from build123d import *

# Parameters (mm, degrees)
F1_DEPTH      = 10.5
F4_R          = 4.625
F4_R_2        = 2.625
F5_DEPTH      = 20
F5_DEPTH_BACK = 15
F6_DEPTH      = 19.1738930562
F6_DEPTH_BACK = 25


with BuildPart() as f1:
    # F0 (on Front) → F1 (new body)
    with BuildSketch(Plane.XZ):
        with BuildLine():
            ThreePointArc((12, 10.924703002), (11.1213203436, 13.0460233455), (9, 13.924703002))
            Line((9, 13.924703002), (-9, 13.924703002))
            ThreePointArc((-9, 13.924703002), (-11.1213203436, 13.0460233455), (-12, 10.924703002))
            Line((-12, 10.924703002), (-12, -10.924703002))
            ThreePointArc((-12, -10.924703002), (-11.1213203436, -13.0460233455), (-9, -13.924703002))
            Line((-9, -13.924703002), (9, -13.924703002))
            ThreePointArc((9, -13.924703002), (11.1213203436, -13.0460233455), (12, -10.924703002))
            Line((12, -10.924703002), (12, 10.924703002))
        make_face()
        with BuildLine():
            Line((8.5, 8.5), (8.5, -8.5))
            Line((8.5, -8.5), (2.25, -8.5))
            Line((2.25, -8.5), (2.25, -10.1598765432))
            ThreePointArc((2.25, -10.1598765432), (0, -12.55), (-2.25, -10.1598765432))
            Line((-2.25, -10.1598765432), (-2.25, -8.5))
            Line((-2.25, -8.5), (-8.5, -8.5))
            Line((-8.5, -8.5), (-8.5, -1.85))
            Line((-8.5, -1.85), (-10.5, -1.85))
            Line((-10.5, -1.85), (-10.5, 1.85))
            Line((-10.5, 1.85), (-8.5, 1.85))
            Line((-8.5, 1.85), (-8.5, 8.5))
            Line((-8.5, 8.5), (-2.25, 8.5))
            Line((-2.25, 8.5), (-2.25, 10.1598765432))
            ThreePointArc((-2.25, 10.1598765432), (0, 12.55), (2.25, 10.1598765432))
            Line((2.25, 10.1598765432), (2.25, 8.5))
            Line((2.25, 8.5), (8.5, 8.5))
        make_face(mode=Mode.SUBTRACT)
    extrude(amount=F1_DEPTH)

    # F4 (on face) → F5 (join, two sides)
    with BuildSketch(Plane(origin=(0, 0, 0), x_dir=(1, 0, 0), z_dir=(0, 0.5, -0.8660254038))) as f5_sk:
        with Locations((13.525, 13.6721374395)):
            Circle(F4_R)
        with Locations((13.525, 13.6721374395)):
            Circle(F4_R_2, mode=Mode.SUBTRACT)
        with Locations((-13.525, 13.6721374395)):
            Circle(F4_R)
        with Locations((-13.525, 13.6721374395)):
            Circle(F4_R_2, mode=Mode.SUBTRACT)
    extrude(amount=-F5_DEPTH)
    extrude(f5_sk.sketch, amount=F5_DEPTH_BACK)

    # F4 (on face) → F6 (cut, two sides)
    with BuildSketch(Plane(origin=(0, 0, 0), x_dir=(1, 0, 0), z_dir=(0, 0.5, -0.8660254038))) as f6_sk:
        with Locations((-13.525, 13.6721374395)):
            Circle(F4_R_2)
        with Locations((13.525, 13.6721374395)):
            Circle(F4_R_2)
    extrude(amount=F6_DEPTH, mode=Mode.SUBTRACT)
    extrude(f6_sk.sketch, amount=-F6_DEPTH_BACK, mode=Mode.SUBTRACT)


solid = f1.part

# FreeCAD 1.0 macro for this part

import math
import FreeCAD as App
import Part
import Sketcher
from FreeCAD import Vector

doc = App.newDocument("Part")
params = doc.addObject("Spreadsheet::Sheet", "Params")
for row, (alias, value) in enumerate([
    ("sketch1_radius", "3 mm"),
    ("sketch1_width", "18 mm"),
    ("sketch1_width2", "2 mm"),
    ("sketch1_height", "17 mm"),
    ("sketch1_height2", "3.7 mm"),
    ("pad1_length", "10.5 mm"),
    ("sketch2_diameter", "9.25 mm"),
    ("sketch2_diameter2", "5.25 mm"),
    ("pad2_length", "20 mm"),
    ("pad2_length2", "15 mm"),
    ("sketch3_diameter", "5.25 mm"),
], start=1):
    params.set(f"A{row}", alias)
    params.set(f"B{row}", "=" + value)
    params.setAlias(f"B{row}", alias)

body = doc.addObject("PartDesign::Body", "Body")

# Sketch on XZ plane
sketch1 = doc.addObject("Sketcher::SketchObject", "Sketch")
body.addObject(sketch1)
sketch1.AttachmentSupport = (doc.XZ_Plane, [""])
sketch1.MapMode = "FlatFace"
sketch1.addGeometry([
    Part.ArcOfCircle(Part.Circle(Vector(9, 10.9, 0), Vector(0, 0, 1), 3), math.radians(0), math.radians(90)),  # 0
    Part.LineSegment(Vector(9, 13.9, 0), Vector(-9, 13.9, 0)),  # 1
    Part.ArcOfCircle(Part.Circle(Vector(-9, 10.9, 0), Vector(0, 0, 1), 3), math.radians(90), math.radians(180)),  # 2
    Part.LineSegment(Vector(-12, 10.9, 0), Vector(-12, -10.9, 0)),  # 3
    Part.ArcOfCircle(Part.Circle(Vector(-9, -10.9, 0), Vector(0, 0, 1), 3), math.radians(180), math.radians(270)),  # 4
    Part.LineSegment(Vector(-9, -13.9, 0), Vector(9, -13.9, 0)),  # 5
    Part.ArcOfCircle(Part.Circle(Vector(9, -10.9, 0), Vector(0, 0, 1), 3), math.radians(-90), math.radians(0)),  # 6
    Part.LineSegment(Vector(12, -10.9, 0), Vector(12, 10.9, 0)),  # 7
    Part.LineSegment(Vector(2.2, 8.5, 0), Vector(8.5, 8.5, 0)),  # 8
    Part.LineSegment(Vector(8.5, 8.5, 0), Vector(8.5, -8.5, 0)),  # 9
    Part.LineSegment(Vector(8.5, -8.5, 0), Vector(2.2, -8.5, 0)),  # 10
    Part.LineSegment(Vector(2.2, -8.5, 0), Vector(2.2, -10.2, 0)),  # 11
    Part.ArcOfCircle(Part.Circle(Vector(0, -10.3, 0), Vector(0, 0, 1), 2.3), math.radians(177), math.radians(363)),  # 12
    Part.LineSegment(Vector(-2.2, -10.2, 0), Vector(-2.2, -8.5, 0)),  # 13
    Part.LineSegment(Vector(-2.2, -8.5, 0), Vector(-8.5, -8.5, 0)),  # 14
    Part.LineSegment(Vector(-8.5, -8.5, 0), Vector(-8.5, -1.9, 0)),  # 15
    Part.LineSegment(Vector(-8.5, -1.9, 0), Vector(-10.5, -1.9, 0)),  # 16
    Part.LineSegment(Vector(-10.5, -1.9, 0), Vector(-10.5, 1.9, 0)),  # 17
    Part.LineSegment(Vector(-10.5, 1.9, 0), Vector(-8.5, 1.9, 0)),  # 18
    Part.LineSegment(Vector(-8.5, 1.9, 0), Vector(-8.5, 8.5, 0)),  # 19
    Part.LineSegment(Vector(-8.5, 8.5, 0), Vector(-2.2, 8.5, 0)),  # 20
    Part.LineSegment(Vector(-2.2, 8.5, 0), Vector(-2.2, 10.2, 0)),  # 21
    Part.ArcOfCircle(Part.Circle(Vector(0, 10.3, 0), Vector(0, 0, 1), 2.3), math.radians(-3), math.radians(183)),  # 22
    Part.LineSegment(Vector(2.2, 10.2, 0), Vector(2.2, 8.5, 0)),  # 23
], False)
sketch1.addConstraint([
    Sketcher.Constraint("Tangent", 0, 2, 1, 1),
    Sketcher.Constraint("Tangent", 1, 2, 2, 1),
    Sketcher.Constraint("Tangent", 2, 2, 3, 1),
    Sketcher.Constraint("Tangent", 3, 2, 4, 1),
    Sketcher.Constraint("Tangent", 4, 2, 5, 1),
    Sketcher.Constraint("Tangent", 5, 2, 6, 1),
    Sketcher.Constraint("Tangent", 6, 2, 7, 1),
    Sketcher.Constraint("Tangent", 7, 2, 0, 1),
    Sketcher.Constraint("Coincident", 8, 2, 9, 1),
    Sketcher.Constraint("Coincident", 9, 2, 10, 1),
    Sketcher.Constraint("Coincident", 10, 2, 11, 1),
    Sketcher.Constraint("Coincident", 11, 2, 12, 2),
    Sketcher.Constraint("Coincident", 12, 1, 13, 1),
    Sketcher.Constraint("Coincident", 13, 2, 14, 1),
    Sketcher.Constraint("Coincident", 14, 2, 15, 1),
    Sketcher.Constraint("Coincident", 15, 2, 16, 1),
    Sketcher.Constraint("Coincident", 16, 2, 17, 1),
    Sketcher.Constraint("Coincident", 17, 2, 18, 1),
    Sketcher.Constraint("Coincident", 18, 2, 19, 1),
    Sketcher.Constraint("Coincident", 19, 2, 20, 1),
    Sketcher.Constraint("Coincident", 20, 2, 21, 1),
    Sketcher.Constraint("Coincident", 21, 2, 22, 2),
    Sketcher.Constraint("Coincident", 22, 1, 23, 1),
    Sketcher.Constraint("Coincident", 23, 2, 8, 1),
    Sketcher.Constraint("Horizontal", 1),
    Sketcher.Constraint("Vertical", 3),
    Sketcher.Constraint("Horizontal", 5),
    Sketcher.Constraint("Vertical", 7),
    Sketcher.Constraint("Horizontal", 8),
    Sketcher.Constraint("Vertical", 9),
    Sketcher.Constraint("Horizontal", 10),
    Sketcher.Constraint("Vertical", 11),
    Sketcher.Constraint("Vertical", 13),
    Sketcher.Constraint("Horizontal", 14),
    Sketcher.Constraint("Vertical", 15),
    Sketcher.Constraint("Horizontal", 16),
    Sketcher.Constraint("Vertical", 17),
    Sketcher.Constraint("Horizontal", 18),
    Sketcher.Constraint("Vertical", 19),
    Sketcher.Constraint("Horizontal", 20),
    Sketcher.Constraint("Vertical", 21),
    Sketcher.Constraint("Vertical", 23),
    Sketcher.Constraint("Equal", 0, 2),
    Sketcher.Constraint("Equal", 2, 4),
    Sketcher.Constraint("Equal", 4, 6),
    Sketcher.Constraint("Equal", 12, 22),
    Sketcher.Constraint("Symmetric", 0, 3, 4, 3, -1, 1),
    Sketcher.Constraint("Symmetric", 12, 3, 22, 3, -1, 1),
    Sketcher.Constraint("Symmetric", 8, 2, 14, 2, -1, 1),
    Sketcher.Constraint("Symmetric", 9, 2, 19, 2, -1, 1),
    Sketcher.Constraint("Symmetric", 11, 2, 12, 1, -2),
    Sketcher.Constraint("Symmetric", 20, 2, 23, 2, -2),
    Sketcher.Constraint("Vertical", 13, 2, 20, 2),
    Sketcher.Constraint("Equal", 15, 19),
    Sketcher.Constraint("Radius", 0, 3.0),
    Sketcher.Constraint("DistanceX", 1, 2, 1, 1, 18.0),
    Sketcher.Constraint("DistanceX", 16, 2, 16, 1, 2.0),
    Sketcher.Constraint("DistanceY", 9, 2, 9, 1, 17.0),
    Sketcher.Constraint("DistanceY", 17, 1, 17, 2, 3.7),
    Sketcher.Constraint("DistanceX", 8, 1, 8, 2, 6.25),
    Sketcher.Constraint("DistanceX", -1, 1, 8, 2, 8.5),
    Sketcher.Constraint("Radius", 12, 2.254107),
    Sketcher.Constraint("DistanceY", 3, 2, 3, 1, 21.849406),
    Sketcher.Constraint("DistanceY", 11, 2, 11, 1, 1.659877),
])
sketch1.setExpression("Constraints[54]", "Params.sketch1_radius")
sketch1.setExpression("Constraints[55]", "Params.sketch1_width")
sketch1.setExpression("Constraints[56]", "Params.sketch1_width2")
sketch1.setExpression("Constraints[57]", "Params.sketch1_height")
sketch1.setExpression("Constraints[58]", "Params.sketch1_height2")
pad1 = doc.addObject("PartDesign::Pad", "Pad")
body.addObject(pad1)
pad1.Profile = sketch1
pad1.setExpression("Length", "Params.pad1_length")

# Sketch on an angled plane
sketch2 = doc.addObject("Sketcher::SketchObject", "Sketch001")
body.addObject(sketch2)
sketch2.Placement = App.Placement(Vector(0, 0, 0), App.Rotation(Vector(1, 0, 0), Vector(0, -0.866025404, -0.5), Vector(0, 0.5, -0.866025404), "ZXY"))
sketch2.addGeometry([
    Part.Circle(Vector(13.5, 13.7, 0), Vector(0, 0, 1), 4.6),
    Part.Circle(Vector(13.5, 13.7, 0), Vector(0, 0, 1), 2.6),
    Part.Circle(Vector(-13.5, 13.7, 0), Vector(0, 0, 1), 4.6),
    Part.Circle(Vector(-13.5, 13.7, 0), Vector(0, 0, 1), 2.6),
], False)
sketch2.addConstraint([
    Sketcher.Constraint("Coincident", 1, 3, 0, 3),
    Sketcher.Constraint("Coincident", 3, 3, 2, 3),
    Sketcher.Constraint("Equal", 0, 2),
    Sketcher.Constraint("Equal", 1, 3),
    Sketcher.Constraint("Symmetric", 0, 3, 2, 3, -2),
    Sketcher.Constraint("Diameter", 0, 9.25),
    Sketcher.Constraint("Diameter", 1, 5.25),
    Sketcher.Constraint("DistanceX", 2, 3, 0, 3, 27.05),
    Sketcher.Constraint("DistanceY", -1, 1, 0, 3, 13.672137),
])
sketch2.setExpression("Constraints[5]", "Params.sketch2_diameter")
sketch2.setExpression("Constraints[6]", "Params.sketch2_diameter2")
pad2 = doc.addObject("PartDesign::Pad", "Pad001")
body.addObject(pad2)
pad2.Profile = sketch2
pad2.Type = "TwoLengths"
pad2.setExpression("Length", "Params.pad2_length")
pad2.setExpression("Length2", "Params.pad2_length2")
pad2.Reversed = True

# Sketch on an angled plane
sketch3 = doc.addObject("Sketcher::SketchObject", "Sketch002")
body.addObject(sketch3)
sketch3.Placement = App.Placement(Vector(0, 0, 0), App.Rotation(Vector(1, 0, 0), Vector(0, -0.866025404, -0.5), Vector(0, 0.5, -0.866025404), "ZXY"))
sketch3.addGeometry([
    Part.Circle(Vector(-13.5, 13.7, 0), Vector(0, 0, 1), 2.6),
    Part.Circle(Vector(13.5, 13.7, 0), Vector(0, 0, 1), 2.6),
], False)
sketch3.addConstraint([
    Sketcher.Constraint("Equal", 0, 1),
    Sketcher.Constraint("Symmetric", 0, 3, 1, 3, -2),
    Sketcher.Constraint("Diameter", 0, 5.25),
    Sketcher.Constraint("DistanceX", 0, 3, 1, 3, 27.05),
    Sketcher.Constraint("DistanceY", -1, 1, 0, 3, 13.672137),
])
sketch3.setExpression("Constraints[2]", "Params.sketch3_diameter")
pocket1 = doc.addObject("PartDesign::Pocket", "Pocket")
body.addObject(pocket1)
pocket1.Profile = sketch3
pocket1.Type = "ThroughAll"
pocket1.Midplane = True

doc.recompute()
